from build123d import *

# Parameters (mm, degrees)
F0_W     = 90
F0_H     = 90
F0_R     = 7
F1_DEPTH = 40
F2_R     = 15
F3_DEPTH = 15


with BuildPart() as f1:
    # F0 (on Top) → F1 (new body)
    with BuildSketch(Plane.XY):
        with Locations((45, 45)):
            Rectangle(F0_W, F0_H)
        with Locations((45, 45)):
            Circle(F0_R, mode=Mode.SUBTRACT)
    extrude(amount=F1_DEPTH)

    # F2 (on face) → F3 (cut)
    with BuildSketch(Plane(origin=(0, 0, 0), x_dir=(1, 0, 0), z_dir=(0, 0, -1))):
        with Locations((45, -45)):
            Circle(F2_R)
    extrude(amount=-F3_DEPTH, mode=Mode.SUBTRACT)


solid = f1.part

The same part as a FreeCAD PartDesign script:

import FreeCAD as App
import Part
import Sketcher
from FreeCAD import Vector
Q = App.Units.Quantity


def add_polygon(sketch, points):
    """Adds a closed chain of lines whose ends are joined by coincident constraints."""
    first, n = sketch.GeometryCount, len(points)
    for a, b in zip(points, points[1:] + points[:1]):
        sketch.addGeometry(Part.LineSegment(App.Vector(*a, 0), App.Vector(*b, 0)), False)
    for i in range(n):
        sketch.addConstraint(Sketcher.Constraint("Coincident", first + i, 2, first + (i + 1) % n, 1))

doc = App.newDocument("Part")
body = doc.addObject("PartDesign::Body", "Body")

sketch1 = body.newObject("Sketcher::SketchObject", "Sketch")
sketch1.AttachmentSupport = (doc.getObject("XY_Plane"), [""])
sketch1.MapMode = "FlatFace"
add_polygon(sketch1, [(0, 90), (0, 0), (90, 0), (90, 90)])
sketch1.addGeometry(Part.Circle(Vector(45, 45, 0), Vector(0, 0, 1), 7), False)
sketch1.addConstraint([
    Sketcher.Constraint("Vertical", 0),
    Sketcher.Constraint("Horizontal", 1),
    Sketcher.Constraint("Vertical", 2),
    Sketcher.Constraint("Horizontal", 3),
    Sketcher.Constraint("Coincident", 0, 2, -1, 1),
    Sketcher.Constraint("Equal", 3, 0),
    Sketcher.Constraint("Diameter", 4, Q("14 mm")),
    Sketcher.Constraint("DistanceX", 1, 1, 1, 2, Q("90 mm")),
    Sketcher.Constraint("DistanceX", -1, 1, 4, 3, Q("45 mm")),
    Sketcher.Constraint("DistanceY", -1, 1, 4, 3, Q("45 mm")),
])
pad1 = body.newObject("PartDesign::Pad", "Pad")
pad1.Profile = sketch1
pad1.Length = 40

sketch2 = body.newObject("Sketcher::SketchObject", "Sketch001")
sketch2.AttachmentSupport = (doc.getObject("XY_Plane"), [""])
sketch2.MapMode = "FlatFace"
sketch2.addGeometry(Part.Circle(Vector(45, 45, 0), Vector(0, 0, 1), 15), False)
sketch2.addConstraint([
    Sketcher.Constraint("Diameter", 0, Q("30 mm")),
    Sketcher.Constraint("DistanceX", -1, 1, 0, 3, Q("45 mm")),
    Sketcher.Constraint("DistanceY", -1, 1, 0, 3, Q("45 mm")),
])
pocket1 = body.newObject("PartDesign::Pocket", "Pocket")
pocket1.Profile = sketch2
pocket1.Length = 15
pocket1.Reversed = True

doc.recompute()
